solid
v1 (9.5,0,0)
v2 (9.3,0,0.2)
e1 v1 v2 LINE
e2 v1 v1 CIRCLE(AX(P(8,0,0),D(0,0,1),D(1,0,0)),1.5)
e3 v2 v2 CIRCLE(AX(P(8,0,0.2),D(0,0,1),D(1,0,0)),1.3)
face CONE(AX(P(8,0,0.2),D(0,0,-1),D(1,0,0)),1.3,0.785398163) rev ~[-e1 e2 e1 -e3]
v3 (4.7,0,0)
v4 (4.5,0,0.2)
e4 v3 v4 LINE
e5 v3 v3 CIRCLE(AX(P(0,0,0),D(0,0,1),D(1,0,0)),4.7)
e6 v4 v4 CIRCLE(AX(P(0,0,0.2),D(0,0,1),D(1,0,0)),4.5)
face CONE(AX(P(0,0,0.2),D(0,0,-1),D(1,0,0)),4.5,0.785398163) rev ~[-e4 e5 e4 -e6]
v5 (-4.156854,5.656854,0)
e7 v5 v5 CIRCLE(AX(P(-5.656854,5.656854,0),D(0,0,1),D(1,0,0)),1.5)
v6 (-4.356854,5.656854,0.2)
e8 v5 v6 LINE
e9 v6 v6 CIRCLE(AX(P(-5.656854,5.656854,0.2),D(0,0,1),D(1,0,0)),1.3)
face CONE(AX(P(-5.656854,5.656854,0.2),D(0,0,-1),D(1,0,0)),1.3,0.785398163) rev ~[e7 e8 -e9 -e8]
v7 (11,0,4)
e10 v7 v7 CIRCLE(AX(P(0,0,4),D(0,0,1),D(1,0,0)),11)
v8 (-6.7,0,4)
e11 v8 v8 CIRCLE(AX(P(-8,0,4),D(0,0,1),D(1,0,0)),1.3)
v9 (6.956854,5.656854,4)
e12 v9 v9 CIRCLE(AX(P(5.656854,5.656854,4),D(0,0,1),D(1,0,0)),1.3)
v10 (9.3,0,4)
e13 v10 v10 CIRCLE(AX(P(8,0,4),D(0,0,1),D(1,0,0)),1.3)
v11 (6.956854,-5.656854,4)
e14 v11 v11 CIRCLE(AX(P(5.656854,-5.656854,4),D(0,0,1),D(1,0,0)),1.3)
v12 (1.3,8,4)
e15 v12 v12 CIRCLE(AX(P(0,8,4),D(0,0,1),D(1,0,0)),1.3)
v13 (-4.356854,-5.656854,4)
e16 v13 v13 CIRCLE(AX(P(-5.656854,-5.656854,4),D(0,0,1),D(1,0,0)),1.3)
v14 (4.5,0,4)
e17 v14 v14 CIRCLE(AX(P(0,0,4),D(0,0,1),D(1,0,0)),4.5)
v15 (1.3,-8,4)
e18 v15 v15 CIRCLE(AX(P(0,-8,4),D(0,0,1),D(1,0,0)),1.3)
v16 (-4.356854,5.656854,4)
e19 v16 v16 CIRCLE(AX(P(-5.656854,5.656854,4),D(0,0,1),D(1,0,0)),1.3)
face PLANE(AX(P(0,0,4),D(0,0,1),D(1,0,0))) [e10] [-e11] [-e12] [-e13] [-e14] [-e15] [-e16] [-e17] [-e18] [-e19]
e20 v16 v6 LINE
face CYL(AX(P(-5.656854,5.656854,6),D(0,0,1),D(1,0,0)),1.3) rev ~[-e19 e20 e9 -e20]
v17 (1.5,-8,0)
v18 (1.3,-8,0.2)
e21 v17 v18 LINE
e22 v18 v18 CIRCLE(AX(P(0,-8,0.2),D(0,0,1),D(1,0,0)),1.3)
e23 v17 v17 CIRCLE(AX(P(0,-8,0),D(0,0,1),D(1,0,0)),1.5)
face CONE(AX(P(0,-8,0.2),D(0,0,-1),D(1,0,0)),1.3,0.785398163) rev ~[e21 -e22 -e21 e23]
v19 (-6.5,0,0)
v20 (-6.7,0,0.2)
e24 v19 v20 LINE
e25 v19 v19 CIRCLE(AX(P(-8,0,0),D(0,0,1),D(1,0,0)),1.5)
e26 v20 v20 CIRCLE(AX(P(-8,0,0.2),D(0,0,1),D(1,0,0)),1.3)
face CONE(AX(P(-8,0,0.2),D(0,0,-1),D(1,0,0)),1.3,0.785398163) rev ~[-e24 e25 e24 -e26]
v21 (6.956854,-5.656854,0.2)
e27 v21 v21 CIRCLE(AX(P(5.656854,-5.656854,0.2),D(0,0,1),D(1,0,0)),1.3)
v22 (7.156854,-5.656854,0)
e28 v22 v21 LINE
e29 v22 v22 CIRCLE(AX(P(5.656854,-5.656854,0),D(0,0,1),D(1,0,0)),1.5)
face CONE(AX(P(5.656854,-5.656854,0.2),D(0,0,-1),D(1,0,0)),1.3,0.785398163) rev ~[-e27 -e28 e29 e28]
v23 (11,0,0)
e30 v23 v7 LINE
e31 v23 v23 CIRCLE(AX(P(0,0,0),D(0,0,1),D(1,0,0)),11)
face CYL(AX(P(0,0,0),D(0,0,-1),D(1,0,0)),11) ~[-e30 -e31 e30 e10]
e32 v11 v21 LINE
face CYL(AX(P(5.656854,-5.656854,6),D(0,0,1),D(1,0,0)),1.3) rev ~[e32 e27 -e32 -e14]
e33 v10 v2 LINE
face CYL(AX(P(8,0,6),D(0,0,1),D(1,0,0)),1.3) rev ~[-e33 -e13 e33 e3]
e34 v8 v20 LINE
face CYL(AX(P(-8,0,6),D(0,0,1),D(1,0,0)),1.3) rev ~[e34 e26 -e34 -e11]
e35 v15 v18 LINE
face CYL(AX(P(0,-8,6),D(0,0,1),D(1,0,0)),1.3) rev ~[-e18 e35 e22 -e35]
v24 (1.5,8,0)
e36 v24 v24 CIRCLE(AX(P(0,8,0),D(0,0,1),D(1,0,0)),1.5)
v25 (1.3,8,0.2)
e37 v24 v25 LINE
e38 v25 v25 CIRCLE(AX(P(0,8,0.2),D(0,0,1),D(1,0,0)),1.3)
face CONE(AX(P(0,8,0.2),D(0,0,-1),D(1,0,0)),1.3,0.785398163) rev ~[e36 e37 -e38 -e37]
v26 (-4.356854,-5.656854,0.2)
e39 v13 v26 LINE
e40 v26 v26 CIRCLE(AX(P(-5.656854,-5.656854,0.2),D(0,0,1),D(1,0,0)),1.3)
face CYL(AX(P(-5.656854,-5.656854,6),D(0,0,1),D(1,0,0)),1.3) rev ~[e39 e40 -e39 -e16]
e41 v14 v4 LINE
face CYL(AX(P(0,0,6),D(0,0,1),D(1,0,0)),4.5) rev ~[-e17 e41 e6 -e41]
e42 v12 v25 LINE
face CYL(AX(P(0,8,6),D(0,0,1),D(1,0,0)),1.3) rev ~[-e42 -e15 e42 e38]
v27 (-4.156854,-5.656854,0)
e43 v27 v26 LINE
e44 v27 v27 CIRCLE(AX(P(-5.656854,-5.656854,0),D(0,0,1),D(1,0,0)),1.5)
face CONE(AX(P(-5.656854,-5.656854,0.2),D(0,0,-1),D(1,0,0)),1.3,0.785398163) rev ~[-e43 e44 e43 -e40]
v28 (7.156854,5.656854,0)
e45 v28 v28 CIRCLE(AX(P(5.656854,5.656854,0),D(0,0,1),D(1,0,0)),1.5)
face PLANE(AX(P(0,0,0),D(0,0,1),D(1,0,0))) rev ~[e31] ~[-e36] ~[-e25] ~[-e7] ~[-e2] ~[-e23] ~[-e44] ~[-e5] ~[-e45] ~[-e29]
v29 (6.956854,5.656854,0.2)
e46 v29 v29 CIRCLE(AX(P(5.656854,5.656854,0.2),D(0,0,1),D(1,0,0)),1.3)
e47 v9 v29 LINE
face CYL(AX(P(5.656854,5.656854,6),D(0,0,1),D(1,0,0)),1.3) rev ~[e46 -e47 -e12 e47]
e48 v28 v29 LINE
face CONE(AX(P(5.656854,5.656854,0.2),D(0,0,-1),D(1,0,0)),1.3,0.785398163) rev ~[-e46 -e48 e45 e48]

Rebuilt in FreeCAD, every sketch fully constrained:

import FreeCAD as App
import Part
import Sketcher
Q = App.Units.Quantity


def edges_at(feature, points):
    """Names of the edges that pass closest to the given points."""
    edges = feature.Shape.Edges
    near = lambda p: min(range(len(edges)), key=lambda i: edges[i].distToShape(Part.Vertex(*p))[0])
    return sorted({f"Edge{near(p) + 1}" for p in points})

doc = App.newDocument("Part")
body = doc.addObject("PartDesign::Body", "Body")

sketch1 = body.newObject("Sketcher::SketchObject", "Sketch")
sketch1.AttachmentSupport = (doc.getObject("XY_Plane"), [""])
sketch1.MapMode = "FlatFace"
sketch1.addGeometry(Part.Circle(App.Vector(0, 0, 0), App.Vector(0, 0, 1), 11), False)
sketch1.addConstraint(Sketcher.Constraint("Coincident", 0, 3, -1, 1))
sketch1.addConstraint(Sketcher.Constraint("Diameter", 0, Q("22 mm")))
pad1 = body.newObject("PartDesign::Pad", "Pad")
pad1.Profile = sketch1
pad1.Length = 4

sketch2 = body.newObject("Sketcher::SketchObject", "Sketch001")
sketch2.AttachmentSupport = (doc.getObject("XY_Plane"), [""])
sketch2.MapMode = "FlatFace"
sketch2.AttachmentOffset = App.Placement(App.Vector(0, 0, 6), App.Rotation())
sketch2.addGeometry(Part.Circle(App.Vector(0, 0, 0), App.Vector(0, 0, 1), 4.5), False)
sketch2.addGeometry(Part.Circle(App.Vector(0, 8, 0), App.Vector(0, 0, 1), 1.3), False)
sketch2.addGeometry(Part.Circle(App.Vector(5.7, 5.7, 0), App.Vector(0, 0, 1), 1.3), False)
sketch2.addGeometry(Part.Circle(App.Vector(8, 0, 0), App.Vector(0, 0, 1), 1.3), False)
sketch2.addGeometry(Part.Circle(App.Vector(5.7, -5.7, 0), App.Vector(0, 0, 1), 1.3), False)
sketch2.addGeometry(Part.Circle(App.Vector(0, -8, 0), App.Vector(0, 0, 1), 1.3), False)
sketch2.addGeometry(Part.Circle(App.Vector(-5.7, -5.7, 0), App.Vector(0, 0, 1), 1.3), False)
sketch2.addGeometry(Part.Circle(App.Vector(-8, 0, 0), App.Vector(0, 0, 1), 1.3), False)
sketch2.addGeometry(Part.Circle(App.Vector(-5.7, 5.7, 0), App.Vector(0, 0, 1), 1.3), False)
sketch2.addConstraint(Sketcher.Constraint("Coincident", 0, 3, -1, 1))
sketch2.addConstraint(Sketcher.Constraint("Equal", 1, 2))
sketch2.addConstraint(Sketcher.Constraint("Equal", 2, 3))
sketch2.addConstraint(Sketcher.Constraint("Equal", 3, 4))
sketch2.addConstraint(Sketcher.Constraint("Equal", 4, 5))
sketch2.addConstraint(Sketcher.Constraint("Equal", 5, 6))
sketch2.addConstraint(Sketcher.Constraint("Equal", 6, 7))
sketch2.addConstraint(Sketcher.Constraint("Equal", 7, 8))
sketch2.addConstraint(Sketcher.Constraint("Symmetric", 1, 3, 5, 3, -1, 1))
sketch2.addConstraint(Sketcher.Constraint("Symmetric", 2, 3, 6, 3, -1, 1))
sketch2.addConstraint(Sketcher.Constraint("Symmetric", 3, 3, 7, 3, -1, 1))
sketch2.addConstraint(Sketcher.Constraint("Symmetric", 4, 3, 8, 3, -1, 1))
sketch2.addConstraint(Sketcher.Constraint("Symmetric", 4, 3, 6, 3, -2))
sketch2.addConstraint(Sketcher.Constraint("PointOnObject", 1, 3, -2))
sketch2.addConstraint(Sketcher.Constraint("PointOnObject", 3, 3, -1))
sketch2.addConstraint(Sketcher.Constraint("Diameter", 0, Q("9 mm")))
sketch2.addConstraint(Sketcher.Constraint("Diameter", 1, Q("2.6 mm")))
sketch2.addConstraint(Sketcher.Constraint("DistanceY", -1, 1, 1, 3, Q("8 mm")))
sketch2.addConstraint(Sketcher.Constraint("DistanceX", -1, 1, 3, 3, Q("8 mm")))
sketch2.addConstraint(Sketcher.Constraint("DistanceX", -1, 1, 2, 3, Q("5.656854 mm")))
sketch2.addConstraint(Sketcher.Constraint("DistanceY", -1, 1, 2, 3, Q("5.656854 mm")))
pocket1 = body.newObject("PartDesign::Pocket", "Pocket")
pocket1.Profile = sketch2
pocket1.Length = 10
doc.recompute()

chamfer = body.newObject("PartDesign::Chamfer", "Chamfer")
chamfer.Base = (pocket1, edges_at(pocket1, [
    (4.357, 5.657, 0),
    (-6.957, 5.657, 0),
    (4.357, -5.657, 0),
    (-9.3, 0, 0),
    (-6.957, -5.657, 0),
    (-1.3, -8, 0),
    (-1.3, 8, 0),
    (-4.5, 0, 0),
    (6.7, 0, 0),
]))
chamfer.Size = 0.2

doc.recompute()
